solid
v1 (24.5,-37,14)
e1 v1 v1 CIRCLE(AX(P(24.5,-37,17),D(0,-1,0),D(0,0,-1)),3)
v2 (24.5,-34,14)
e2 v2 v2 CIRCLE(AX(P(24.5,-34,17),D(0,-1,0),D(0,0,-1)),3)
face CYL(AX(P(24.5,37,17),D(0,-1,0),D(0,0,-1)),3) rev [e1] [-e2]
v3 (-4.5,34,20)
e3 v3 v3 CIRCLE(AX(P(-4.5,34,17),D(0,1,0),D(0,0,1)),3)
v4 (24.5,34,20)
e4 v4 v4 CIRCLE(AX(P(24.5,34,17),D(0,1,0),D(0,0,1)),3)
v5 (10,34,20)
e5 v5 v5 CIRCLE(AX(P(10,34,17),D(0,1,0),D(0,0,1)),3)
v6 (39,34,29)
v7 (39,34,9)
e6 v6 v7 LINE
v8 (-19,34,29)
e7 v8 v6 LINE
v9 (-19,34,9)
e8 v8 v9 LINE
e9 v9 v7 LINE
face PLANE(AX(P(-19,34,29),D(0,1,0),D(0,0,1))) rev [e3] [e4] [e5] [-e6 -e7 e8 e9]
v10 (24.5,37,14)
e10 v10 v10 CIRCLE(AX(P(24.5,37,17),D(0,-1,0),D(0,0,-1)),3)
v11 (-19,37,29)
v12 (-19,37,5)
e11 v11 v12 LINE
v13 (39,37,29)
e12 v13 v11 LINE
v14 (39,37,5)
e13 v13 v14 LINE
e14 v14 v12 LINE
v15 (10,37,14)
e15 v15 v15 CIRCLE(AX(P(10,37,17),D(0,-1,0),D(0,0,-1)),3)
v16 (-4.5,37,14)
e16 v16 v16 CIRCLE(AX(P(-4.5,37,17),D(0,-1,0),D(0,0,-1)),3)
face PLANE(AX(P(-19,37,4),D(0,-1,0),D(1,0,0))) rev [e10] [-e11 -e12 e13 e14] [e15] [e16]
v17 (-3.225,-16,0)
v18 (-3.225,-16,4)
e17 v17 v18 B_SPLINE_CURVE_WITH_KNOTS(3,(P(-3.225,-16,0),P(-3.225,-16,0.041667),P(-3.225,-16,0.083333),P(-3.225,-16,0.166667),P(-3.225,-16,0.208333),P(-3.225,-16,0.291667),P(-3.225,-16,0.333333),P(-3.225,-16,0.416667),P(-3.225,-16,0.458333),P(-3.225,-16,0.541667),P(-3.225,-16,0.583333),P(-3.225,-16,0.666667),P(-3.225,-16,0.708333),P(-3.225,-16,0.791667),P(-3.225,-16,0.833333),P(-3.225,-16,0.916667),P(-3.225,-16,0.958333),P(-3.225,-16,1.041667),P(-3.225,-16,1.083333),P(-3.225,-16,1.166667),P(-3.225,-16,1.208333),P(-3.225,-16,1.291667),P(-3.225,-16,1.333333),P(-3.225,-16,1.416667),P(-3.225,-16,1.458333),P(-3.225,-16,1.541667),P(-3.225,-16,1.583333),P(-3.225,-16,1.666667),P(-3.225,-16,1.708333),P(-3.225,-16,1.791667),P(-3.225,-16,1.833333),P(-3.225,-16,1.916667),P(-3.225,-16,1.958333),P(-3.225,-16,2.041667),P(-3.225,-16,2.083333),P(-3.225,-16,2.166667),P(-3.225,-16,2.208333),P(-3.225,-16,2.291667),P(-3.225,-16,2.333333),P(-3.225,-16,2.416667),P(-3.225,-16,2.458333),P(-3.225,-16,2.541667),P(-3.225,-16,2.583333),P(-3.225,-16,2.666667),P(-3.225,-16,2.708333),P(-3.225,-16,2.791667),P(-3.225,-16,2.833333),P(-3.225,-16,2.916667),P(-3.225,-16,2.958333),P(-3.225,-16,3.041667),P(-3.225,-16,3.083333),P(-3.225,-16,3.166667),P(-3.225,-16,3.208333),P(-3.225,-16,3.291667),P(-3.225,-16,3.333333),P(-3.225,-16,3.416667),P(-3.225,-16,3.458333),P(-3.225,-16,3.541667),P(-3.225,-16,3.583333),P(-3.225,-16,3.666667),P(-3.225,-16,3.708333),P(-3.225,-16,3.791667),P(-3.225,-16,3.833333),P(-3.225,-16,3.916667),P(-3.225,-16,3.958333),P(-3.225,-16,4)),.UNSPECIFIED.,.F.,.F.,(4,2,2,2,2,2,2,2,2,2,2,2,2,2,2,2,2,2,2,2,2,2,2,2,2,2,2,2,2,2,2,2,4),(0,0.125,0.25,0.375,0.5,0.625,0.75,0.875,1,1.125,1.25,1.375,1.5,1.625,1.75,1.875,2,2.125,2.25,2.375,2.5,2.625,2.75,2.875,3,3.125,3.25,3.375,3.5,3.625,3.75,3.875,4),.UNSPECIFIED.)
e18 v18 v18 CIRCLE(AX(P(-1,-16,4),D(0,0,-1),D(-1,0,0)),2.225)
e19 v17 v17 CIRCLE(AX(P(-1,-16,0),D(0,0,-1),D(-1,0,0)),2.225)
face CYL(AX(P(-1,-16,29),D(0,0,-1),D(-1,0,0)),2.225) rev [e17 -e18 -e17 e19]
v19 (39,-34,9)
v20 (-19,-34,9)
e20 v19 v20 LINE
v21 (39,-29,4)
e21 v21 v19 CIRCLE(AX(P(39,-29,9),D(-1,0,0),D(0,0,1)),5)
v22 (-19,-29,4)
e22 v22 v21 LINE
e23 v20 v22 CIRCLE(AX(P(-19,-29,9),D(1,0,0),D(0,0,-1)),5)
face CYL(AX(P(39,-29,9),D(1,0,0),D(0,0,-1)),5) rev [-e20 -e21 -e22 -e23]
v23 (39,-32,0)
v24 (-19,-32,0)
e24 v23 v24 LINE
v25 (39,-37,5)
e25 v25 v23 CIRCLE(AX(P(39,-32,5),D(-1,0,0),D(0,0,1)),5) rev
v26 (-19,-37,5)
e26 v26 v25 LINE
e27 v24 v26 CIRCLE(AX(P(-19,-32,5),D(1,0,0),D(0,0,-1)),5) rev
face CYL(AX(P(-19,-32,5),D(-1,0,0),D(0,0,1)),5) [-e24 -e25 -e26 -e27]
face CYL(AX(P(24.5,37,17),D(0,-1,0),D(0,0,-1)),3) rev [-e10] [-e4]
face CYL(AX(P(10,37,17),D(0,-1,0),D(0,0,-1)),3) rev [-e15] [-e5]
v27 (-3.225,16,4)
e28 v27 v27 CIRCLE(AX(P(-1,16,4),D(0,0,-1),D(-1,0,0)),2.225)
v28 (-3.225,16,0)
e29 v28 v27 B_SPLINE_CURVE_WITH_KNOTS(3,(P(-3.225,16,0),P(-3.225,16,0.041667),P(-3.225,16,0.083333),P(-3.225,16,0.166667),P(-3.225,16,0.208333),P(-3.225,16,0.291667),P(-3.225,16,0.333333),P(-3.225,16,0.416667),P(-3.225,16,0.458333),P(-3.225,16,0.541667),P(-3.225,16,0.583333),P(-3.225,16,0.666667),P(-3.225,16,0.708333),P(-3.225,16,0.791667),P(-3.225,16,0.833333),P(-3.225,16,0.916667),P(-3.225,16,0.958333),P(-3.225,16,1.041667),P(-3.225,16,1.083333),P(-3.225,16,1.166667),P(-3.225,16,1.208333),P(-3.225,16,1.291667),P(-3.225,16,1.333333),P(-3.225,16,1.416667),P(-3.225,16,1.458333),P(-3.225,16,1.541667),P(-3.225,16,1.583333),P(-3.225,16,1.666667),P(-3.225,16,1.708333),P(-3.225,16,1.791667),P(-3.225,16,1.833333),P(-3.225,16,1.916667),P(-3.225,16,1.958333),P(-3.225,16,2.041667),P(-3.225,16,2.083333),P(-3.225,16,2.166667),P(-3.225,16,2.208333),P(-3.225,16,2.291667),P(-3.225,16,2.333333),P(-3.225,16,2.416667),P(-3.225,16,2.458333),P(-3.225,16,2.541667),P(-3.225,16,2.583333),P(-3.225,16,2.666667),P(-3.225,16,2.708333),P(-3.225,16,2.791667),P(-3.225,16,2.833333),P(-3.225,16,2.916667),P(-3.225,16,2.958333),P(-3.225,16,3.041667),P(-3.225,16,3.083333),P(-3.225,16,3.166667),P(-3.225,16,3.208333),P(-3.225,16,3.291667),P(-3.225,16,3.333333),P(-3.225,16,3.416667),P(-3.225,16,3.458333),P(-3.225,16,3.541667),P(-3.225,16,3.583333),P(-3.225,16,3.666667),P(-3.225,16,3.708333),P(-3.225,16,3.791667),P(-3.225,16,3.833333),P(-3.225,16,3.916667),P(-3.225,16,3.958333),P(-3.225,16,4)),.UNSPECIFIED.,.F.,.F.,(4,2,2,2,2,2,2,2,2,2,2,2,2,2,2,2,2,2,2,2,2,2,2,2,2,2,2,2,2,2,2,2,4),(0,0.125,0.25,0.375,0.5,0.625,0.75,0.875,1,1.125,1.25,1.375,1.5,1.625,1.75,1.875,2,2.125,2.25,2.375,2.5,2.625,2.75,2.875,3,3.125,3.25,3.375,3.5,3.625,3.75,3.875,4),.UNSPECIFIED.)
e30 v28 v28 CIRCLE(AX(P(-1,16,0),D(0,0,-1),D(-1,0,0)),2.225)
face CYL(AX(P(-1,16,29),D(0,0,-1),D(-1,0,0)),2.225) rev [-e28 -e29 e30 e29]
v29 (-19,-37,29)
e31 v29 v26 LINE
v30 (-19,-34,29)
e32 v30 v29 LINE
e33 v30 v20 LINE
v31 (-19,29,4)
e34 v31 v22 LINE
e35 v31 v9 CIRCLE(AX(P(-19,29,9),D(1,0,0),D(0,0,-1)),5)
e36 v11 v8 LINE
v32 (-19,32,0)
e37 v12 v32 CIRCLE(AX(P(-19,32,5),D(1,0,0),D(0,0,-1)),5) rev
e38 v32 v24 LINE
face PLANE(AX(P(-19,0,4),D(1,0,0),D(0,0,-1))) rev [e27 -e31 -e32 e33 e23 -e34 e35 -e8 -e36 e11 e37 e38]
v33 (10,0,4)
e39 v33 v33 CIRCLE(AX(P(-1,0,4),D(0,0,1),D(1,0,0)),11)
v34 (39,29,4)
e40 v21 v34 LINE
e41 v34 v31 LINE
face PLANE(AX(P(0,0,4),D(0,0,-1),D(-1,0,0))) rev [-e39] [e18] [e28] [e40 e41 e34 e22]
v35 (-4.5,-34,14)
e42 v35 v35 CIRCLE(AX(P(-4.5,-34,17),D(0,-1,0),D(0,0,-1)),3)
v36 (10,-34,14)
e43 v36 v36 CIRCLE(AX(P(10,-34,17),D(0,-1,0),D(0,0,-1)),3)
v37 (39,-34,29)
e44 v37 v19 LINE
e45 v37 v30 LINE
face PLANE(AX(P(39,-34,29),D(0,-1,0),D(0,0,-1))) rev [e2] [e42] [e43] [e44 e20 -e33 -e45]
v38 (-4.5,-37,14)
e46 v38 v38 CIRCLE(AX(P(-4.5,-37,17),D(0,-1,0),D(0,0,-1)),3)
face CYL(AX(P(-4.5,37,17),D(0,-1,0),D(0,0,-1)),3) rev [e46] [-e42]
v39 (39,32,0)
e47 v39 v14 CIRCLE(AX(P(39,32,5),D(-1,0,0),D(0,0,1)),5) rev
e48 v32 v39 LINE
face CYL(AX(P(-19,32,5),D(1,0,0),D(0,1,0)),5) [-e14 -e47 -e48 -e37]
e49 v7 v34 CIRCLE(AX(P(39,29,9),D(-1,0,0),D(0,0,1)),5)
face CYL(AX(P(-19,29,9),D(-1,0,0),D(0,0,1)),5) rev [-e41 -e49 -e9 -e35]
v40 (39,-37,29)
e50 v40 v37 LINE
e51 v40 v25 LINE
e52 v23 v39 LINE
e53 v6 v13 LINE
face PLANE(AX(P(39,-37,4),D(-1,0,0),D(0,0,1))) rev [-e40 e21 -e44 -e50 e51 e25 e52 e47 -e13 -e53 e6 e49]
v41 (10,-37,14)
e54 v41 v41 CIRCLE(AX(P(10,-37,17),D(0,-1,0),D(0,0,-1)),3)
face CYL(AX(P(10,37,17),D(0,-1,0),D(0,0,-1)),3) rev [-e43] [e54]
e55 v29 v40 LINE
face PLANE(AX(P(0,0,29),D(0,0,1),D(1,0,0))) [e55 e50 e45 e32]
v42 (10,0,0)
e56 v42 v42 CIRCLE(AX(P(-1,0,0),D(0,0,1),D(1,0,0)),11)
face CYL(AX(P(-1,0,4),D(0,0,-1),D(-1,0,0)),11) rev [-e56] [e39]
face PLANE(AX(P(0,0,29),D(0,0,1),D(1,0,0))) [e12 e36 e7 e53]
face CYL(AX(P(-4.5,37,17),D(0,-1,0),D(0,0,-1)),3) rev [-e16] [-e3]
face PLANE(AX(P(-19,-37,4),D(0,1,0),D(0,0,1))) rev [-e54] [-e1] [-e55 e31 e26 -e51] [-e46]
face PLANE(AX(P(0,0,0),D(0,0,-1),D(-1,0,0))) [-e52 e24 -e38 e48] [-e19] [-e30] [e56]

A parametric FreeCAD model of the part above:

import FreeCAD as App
import Part
import Sketcher
Q = App.Units.Quantity


def edges_at(feature, points):
    """Names of the edges that pass closest to the given points."""
    edges = feature.Shape.Edges
    near = lambda p: min(range(len(edges)), key=lambda i: edges[i].distToShape(Part.Vertex(*p))[0])
    return sorted({f"Edge{near(p) + 1}" for p in points})

doc = App.newDocument("Part")
body = doc.addObject("PartDesign::Body", "Body")

# Sketch on XY plane
sketch1 = body.newObject("Sketcher::SketchObject", "Sketch")
sketch1.AttachmentSupport = (doc.getObject("XY_Plane"), [""])
sketch1.MapMode = "FlatFace"
sketch1.addGeometry(Part.LineSegment(App.Vector(39, 37, 0), App.Vector(-19, 37, 0)), False)
sketch1.addGeometry(Part.LineSegment(App.Vector(-19, 37, 0), App.Vector(-19, -37, 0)), False)
sketch1.addGeometry(Part.LineSegment(App.Vector(-19, -37, 0), App.Vector(39, -37, 0)), False)
sketch1.addGeometry(Part.LineSegment(App.Vector(39, -37, 0), App.Vector(39, 37, 0)), False)
sketch1.addGeometry(Part.Circle(App.Vector(-1, 0, 0), App.Vector(0, 0, 1), 11), False)
sketch1.addConstraint(Sketcher.Constraint("Coincident", 0, 2, 1, 1))
sketch1.addConstraint(Sketcher.Constraint("Coincident", 1, 2, 2, 1))
sketch1.addConstraint(Sketcher.Constraint("Coincident", 2, 2, 3, 1))
sketch1.addConstraint(Sketcher.Constraint("Coincident", 3, 2, 0, 1))
sketch1.addConstraint(Sketcher.Constraint("Horizontal", 0))
sketch1.addConstraint(Sketcher.Constraint("Vertical", 1))
sketch1.addConstraint(Sketcher.Constraint("Horizontal", 2))
sketch1.addConstraint(Sketcher.Constraint("Vertical", 3))
sketch1.addConstraint(Sketcher.Constraint("PointOnObject", 4, 3, -1))
sketch1.addConstraint(Sketcher.Constraint("Diameter", 4, Q("22 mm")))
sketch1.addConstraint(Sketcher.Constraint("DistanceX", 0, 2, 0, 1, Q("58 mm")))
sketch1.addConstraint(Sketcher.Constraint("DistanceY", 1, 2, 1, 1, Q("74 mm")))
sketch1.addConstraint(Sketcher.Constraint("DistanceX", 4, 3, -1, 1, Q("1 mm")))
sketch1.addConstraint(Sketcher.Constraint("DistanceX", 0, 2, -1, 1, Q("19 mm")))
sketch1.addConstraint(Sketcher.Constraint("DistanceY", -1, 1, 0, 2, Q("37 mm")))
pad1 = body.newObject("PartDesign::Pad", "Pad")
pad1.Profile = sketch1
pad1.Length = 4

# Sketch on XY plane
sketch2 = body.newObject("Sketcher::SketchObject", "Sketch001")
sketch2.AttachmentSupport = (doc.getObject("XY_Plane"), [""])
sketch2.MapMode = "FlatFace"
sketch2.AttachmentOffset = App.Placement(App.Vector(0, 0, 4), App.Rotation())
sketch2.addGeometry(Part.LineSegment(App.Vector(-19, 37, 0), App.Vector(-19, 34, 0)), False)
sketch2.addGeometry(Part.LineSegment(App.Vector(-19, 34, 0), App.Vector(39, 34, 0)), False)
sketch2.addGeometry(Part.LineSegment(App.Vector(39, 34, 0), App.Vector(39, 37, 0)), False)
sketch2.addGeometry(Part.LineSegment(App.Vector(39, 37, 0), App.Vector(-19, 37, 0)), False)
sketch2.addGeometry(Part.LineSegment(App.Vector(-19, -34, 0), App.Vector(-19, -37, 0)), False)
sketch2.addGeometry(Part.LineSegment(App.Vector(-19, -37, 0), App.Vector(39, -37, 0)), False)
sketch2.addGeometry(Part.LineSegment(App.Vector(39, -37, 0), App.Vector(39, -34, 0)), False)
sketch2.addGeometry(Part.LineSegment(App.Vector(39, -34, 0), App.Vector(-19, -34, 0)), False)
sketch2.addConstraint(Sketcher.Constraint("Coincident", 0, 2, 1, 1))
sketch2.addConstraint(Sketcher.Constraint("Coincident", 1, 2, 2, 1))
sketch2.addConstraint(Sketcher.Constraint("Coincident", 2, 2, 3, 1))
sketch2.addConstraint(Sketcher.Constraint("Coincident", 3, 2, 0, 1))
sketch2.addConstraint(Sketcher.Constraint("Coincident", 4, 2, 5, 1))
sketch2.addConstraint(Sketcher.Constraint("Coincident", 5, 2, 6, 1))
sketch2.addConstraint(Sketcher.Constraint("Coincident", 6, 2, 7, 1))
sketch2.addConstraint(Sketcher.Constraint("Coincident", 7, 2, 4, 1))
sketch2.addConstraint(Sketcher.Constraint("Vertical", 0))
sketch2.addConstraint(Sketcher.Constraint("Horizontal", 1))
sketch2.addConstraint(Sketcher.Constraint("Vertical", 2))
sketch2.addConstraint(Sketcher.Constraint("Horizontal", 3))
sketch2.addConstraint(Sketcher.Constraint("Vertical", 4))
sketch2.addConstraint(Sketcher.Constraint("Horizontal", 5))
sketch2.addConstraint(Sketcher.Constraint("Vertical", 6))
sketch2.addConstraint(Sketcher.Constraint("Horizontal", 7))
sketch2.addConstraint(Sketcher.Constraint("Symmetric", 3, 2, 4, 2, -1))
sketch2.addConstraint(Sketcher.Constraint("Symmetric", 1, 2, 6, 2, -1))
sketch2.addConstraint(Sketcher.Constraint("DistanceX", 1, 1, 1, 2, Q("58 mm")))
sketch2.addConstraint(Sketcher.Constraint("DistanceY", 0, 2, 0, 1, Q("3 mm")))
sketch2.addConstraint(Sketcher.Constraint("DistanceX", 0, 2, -1, 1, Q("19 mm")))
sketch2.addConstraint(Sketcher.Constraint("DistanceY", -1, 1, 0, 2, Q("34 mm")))
pad2 = body.newObject("PartDesign::Pad", "Pad001")
pad2.Profile = sketch2
pad2.Length = 25
doc.recompute()

fillet = body.newObject("PartDesign::Fillet", "Fillet")
fillet.Base = (pad2, edges_at(pad2, [
    (10, 34, 4),
    (10, -34, 4),
    (10, -37, 0),
    (10, 37, 0),
]))
fillet.Radius = 5

# Sketch on XZ plane
sketch3 = body.newObject("Sketcher::SketchObject", "Sketch002")
sketch3.AttachmentSupport = (doc.getObject("XZ_Plane"), [""])
sketch3.MapMode = "FlatFace"
sketch3.AttachmentOffset = App.Placement(App.Vector(0, 0, 37), App.Rotation())
sketch3.addGeometry(Part.Circle(App.Vector(24.5, 17, 0), App.Vector(0, 0, 1), 3), False)
sketch3.addGeometry(Part.Circle(App.Vector(-4.5, 17, 0), App.Vector(0, 0, 1), 3), False)
sketch3.addGeometry(Part.Circle(App.Vector(10, 17, 0), App.Vector(0, 0, 1), 3), False)
sketch3.addConstraint(Sketcher.Constraint("Equal", 0, 1))
sketch3.addConstraint(Sketcher.Constraint("Equal", 1, 2))
sketch3.addConstraint(Sketcher.Constraint("Horizontal", 0, 3, 1, 3))
sketch3.addConstraint(Sketcher.Constraint("Horizontal", 1, 3, 2, 3))
sketch3.addConstraint(Sketcher.Constraint("Diameter", 0, Q("6 mm")))
sketch3.addConstraint(Sketcher.Constraint("DistanceY", -1, 1, 0, 3, Q("17 mm")))
sketch3.addConstraint(Sketcher.Constraint("DistanceX", -1, 1, 2, 3, Q("10 mm")))
sketch3.addConstraint(Sketcher.Constraint("DistanceX", 1, 3, 0, 3, Q("29 mm")))
sketch3.addConstraint(Sketcher.Constraint("DistanceX", -1, 1, 0, 3, Q("24.5 mm")))
pocket1 = body.newObject("PartDesign::Pocket", "Pocket")
pocket1.Profile = sketch3
pocket1.Type = "ThroughAll"

# Sketch on XY plane
sketch4 = body.newObject("Sketcher::SketchObject", "Sketch003")
sketch4.AttachmentSupport = (doc.getObject("XY_Plane"), [""])
sketch4.MapMode = "FlatFace"
sketch4.addGeometry(Part.Circle(App.Vector(-1, -16, 0), App.Vector(0, 0, 1), 2.225), False)
sketch4.addGeometry(Part.Circle(App.Vector(-1, 16, 0), App.Vector(0, 0, 1), 2.225), False)
sketch4.addConstraint(Sketcher.Constraint("Equal", 0, 1))
sketch4.addConstraint(Sketcher.Constraint("Symmetric", 0, 3, 1, 3, -1))
sketch4.addConstraint(Sketcher.Constraint("Diameter", 0, Q("4.45 mm")))
sketch4.addConstraint(Sketcher.Constraint("DistanceX", 0, 3, -1, 1, Q("1 mm")))
sketch4.addConstraint(Sketcher.Constraint("DistanceY", 0, 3, -1, 1, Q("16 mm")))
pocket2 = body.newObject("PartDesign::Pocket", "Pocket001")
pocket2.Profile = sketch4
pocket2.Type = "ThroughAll"
pocket2.Reversed = True

doc.recompute()
